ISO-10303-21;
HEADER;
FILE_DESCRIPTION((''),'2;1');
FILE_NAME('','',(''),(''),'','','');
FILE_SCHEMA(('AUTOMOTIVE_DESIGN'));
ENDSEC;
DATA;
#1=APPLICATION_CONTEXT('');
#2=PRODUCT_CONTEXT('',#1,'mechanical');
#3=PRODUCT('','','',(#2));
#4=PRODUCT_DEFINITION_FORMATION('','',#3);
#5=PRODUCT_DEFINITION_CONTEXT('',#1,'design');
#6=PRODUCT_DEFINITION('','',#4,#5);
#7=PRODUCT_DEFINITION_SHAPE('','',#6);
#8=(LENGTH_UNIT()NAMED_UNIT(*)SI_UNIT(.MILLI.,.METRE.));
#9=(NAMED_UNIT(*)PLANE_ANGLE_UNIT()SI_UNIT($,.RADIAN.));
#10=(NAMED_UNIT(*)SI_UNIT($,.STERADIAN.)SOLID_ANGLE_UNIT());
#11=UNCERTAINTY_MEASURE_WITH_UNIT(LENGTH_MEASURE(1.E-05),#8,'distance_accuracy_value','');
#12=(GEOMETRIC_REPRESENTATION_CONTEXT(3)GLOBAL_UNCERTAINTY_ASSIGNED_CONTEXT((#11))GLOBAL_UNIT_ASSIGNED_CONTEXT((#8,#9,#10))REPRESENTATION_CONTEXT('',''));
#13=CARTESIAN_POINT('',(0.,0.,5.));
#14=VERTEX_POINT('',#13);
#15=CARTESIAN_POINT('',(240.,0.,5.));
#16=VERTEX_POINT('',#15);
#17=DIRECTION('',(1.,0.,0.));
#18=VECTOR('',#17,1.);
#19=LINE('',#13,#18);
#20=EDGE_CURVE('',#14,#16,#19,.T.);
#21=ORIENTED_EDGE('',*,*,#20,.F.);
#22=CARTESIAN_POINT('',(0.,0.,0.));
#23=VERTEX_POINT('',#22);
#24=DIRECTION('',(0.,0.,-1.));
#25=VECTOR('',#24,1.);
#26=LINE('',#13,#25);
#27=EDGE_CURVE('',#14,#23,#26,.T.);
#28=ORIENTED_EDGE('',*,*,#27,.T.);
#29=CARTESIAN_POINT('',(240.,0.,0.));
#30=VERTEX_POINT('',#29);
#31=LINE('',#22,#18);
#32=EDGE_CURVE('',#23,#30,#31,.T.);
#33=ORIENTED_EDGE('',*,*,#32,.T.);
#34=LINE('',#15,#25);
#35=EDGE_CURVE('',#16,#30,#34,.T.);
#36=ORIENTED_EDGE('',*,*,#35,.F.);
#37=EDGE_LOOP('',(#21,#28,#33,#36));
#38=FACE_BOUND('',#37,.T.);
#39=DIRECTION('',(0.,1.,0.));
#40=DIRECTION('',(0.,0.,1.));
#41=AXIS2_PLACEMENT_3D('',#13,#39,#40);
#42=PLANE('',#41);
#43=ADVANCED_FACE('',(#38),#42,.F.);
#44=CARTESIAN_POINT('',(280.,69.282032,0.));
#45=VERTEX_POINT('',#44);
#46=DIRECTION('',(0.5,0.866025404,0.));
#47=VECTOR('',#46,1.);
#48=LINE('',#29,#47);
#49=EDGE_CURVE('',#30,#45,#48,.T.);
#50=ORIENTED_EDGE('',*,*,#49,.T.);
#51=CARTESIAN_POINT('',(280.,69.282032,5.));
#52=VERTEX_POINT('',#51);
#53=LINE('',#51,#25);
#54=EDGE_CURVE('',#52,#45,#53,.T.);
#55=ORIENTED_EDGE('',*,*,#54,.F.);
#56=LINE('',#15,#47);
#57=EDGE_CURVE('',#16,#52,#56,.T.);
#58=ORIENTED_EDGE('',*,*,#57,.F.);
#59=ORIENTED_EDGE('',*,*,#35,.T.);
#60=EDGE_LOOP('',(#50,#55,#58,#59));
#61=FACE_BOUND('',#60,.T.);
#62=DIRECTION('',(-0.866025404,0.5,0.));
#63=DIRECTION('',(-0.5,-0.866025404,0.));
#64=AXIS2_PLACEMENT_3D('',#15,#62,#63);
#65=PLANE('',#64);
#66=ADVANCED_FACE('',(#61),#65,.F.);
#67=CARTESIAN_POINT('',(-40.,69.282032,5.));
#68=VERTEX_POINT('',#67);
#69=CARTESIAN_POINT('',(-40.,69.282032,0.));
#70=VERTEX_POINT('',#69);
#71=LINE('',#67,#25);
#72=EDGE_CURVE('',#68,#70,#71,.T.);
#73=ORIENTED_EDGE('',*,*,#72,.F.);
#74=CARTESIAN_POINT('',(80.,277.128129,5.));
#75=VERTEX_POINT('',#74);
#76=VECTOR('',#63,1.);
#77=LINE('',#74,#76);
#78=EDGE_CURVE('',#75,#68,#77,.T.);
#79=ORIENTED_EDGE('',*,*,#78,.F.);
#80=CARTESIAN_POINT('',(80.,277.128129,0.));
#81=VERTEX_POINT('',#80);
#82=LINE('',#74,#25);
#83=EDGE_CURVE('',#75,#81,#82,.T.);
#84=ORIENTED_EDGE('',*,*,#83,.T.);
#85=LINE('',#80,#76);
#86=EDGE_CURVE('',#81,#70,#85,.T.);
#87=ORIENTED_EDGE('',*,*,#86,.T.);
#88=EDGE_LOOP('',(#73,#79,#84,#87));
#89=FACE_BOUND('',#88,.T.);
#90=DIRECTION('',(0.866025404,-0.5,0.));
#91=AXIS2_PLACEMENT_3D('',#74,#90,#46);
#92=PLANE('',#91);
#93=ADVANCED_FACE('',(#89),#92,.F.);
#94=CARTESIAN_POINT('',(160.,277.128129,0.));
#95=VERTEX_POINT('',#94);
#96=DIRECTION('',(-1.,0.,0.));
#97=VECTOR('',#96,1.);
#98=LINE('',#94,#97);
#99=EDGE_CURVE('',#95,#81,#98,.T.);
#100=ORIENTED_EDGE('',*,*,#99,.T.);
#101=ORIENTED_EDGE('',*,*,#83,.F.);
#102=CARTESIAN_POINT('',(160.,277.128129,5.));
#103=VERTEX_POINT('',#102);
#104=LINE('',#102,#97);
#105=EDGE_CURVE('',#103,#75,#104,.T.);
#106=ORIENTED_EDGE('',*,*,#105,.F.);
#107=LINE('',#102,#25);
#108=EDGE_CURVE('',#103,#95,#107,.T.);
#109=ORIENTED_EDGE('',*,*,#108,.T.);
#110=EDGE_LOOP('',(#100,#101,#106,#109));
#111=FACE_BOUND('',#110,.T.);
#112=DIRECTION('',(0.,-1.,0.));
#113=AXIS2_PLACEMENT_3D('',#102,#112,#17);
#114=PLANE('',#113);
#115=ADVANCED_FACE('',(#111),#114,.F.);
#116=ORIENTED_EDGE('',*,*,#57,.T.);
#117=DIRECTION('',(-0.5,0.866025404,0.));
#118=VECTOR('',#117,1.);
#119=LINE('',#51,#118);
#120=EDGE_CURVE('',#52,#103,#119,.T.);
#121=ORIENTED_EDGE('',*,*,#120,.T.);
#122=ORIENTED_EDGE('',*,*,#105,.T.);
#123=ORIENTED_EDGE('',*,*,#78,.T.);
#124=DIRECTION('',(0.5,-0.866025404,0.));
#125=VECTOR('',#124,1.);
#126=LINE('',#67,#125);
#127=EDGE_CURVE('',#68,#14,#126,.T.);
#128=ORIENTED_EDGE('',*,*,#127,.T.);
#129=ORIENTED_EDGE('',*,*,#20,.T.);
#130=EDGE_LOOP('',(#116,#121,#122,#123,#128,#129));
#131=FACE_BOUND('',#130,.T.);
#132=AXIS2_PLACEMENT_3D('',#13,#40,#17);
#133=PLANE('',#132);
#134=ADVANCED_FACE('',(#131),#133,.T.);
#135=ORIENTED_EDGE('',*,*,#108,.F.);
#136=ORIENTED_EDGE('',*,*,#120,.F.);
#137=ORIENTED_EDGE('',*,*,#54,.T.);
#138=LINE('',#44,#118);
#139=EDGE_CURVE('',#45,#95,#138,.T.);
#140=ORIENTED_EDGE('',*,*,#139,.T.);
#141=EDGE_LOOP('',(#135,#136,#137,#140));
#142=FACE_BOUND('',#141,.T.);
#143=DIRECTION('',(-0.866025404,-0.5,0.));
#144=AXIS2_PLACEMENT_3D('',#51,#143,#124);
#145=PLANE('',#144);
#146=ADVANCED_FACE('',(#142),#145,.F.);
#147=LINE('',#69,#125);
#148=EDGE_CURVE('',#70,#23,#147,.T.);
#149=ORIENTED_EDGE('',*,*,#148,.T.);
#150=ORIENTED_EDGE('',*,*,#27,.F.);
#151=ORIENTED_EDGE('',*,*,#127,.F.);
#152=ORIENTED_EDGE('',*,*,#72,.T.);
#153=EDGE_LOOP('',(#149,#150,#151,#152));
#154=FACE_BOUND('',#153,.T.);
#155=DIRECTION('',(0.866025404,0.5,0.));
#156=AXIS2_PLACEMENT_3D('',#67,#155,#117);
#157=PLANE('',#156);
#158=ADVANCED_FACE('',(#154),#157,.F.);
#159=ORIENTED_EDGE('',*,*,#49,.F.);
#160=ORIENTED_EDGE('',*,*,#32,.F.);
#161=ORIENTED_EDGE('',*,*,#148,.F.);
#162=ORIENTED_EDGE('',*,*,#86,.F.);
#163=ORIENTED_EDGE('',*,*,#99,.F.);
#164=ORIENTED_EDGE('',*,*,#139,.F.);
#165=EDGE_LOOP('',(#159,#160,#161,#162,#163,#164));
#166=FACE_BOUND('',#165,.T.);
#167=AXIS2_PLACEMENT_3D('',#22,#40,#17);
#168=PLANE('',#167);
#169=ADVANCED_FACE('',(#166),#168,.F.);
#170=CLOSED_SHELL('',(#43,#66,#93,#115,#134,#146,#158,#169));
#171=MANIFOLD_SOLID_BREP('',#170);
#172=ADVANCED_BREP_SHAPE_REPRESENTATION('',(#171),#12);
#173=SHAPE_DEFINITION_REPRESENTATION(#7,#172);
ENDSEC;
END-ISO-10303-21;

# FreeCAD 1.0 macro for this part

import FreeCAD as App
import Part
import Sketcher
Q = App.Units.Quantity


def add_polygon(sketch, points):
    """Adds a closed chain of lines whose ends are joined by coincident constraints."""
    first, n = sketch.GeometryCount, len(points)
    for a, b in zip(points, points[1:] + points[:1]):
        sketch.addGeometry(Part.LineSegment(App.Vector(*a, 0), App.Vector(*b, 0)), False)
    for i in range(n):
        sketch.addConstraint(Sketcher.Constraint("Coincident", first + i, 2, first + (i + 1) % n, 1))

doc = App.newDocument("Part")
body = doc.addObject("PartDesign::Body", "Body")

sketch1 = body.newObject("Sketcher::SketchObject", "Sketch")
sketch1.AttachmentSupport = (doc.getObject("XY_Plane"), [""])
sketch1.MapMode = "FlatFace"
add_polygon(sketch1, [(0, 0), (240, 0), (280, 69.282032), (160, 277.128129), (80, 277.128129), (-40, 69.282032)])
sketch1.addConstraint(Sketcher.Constraint("Horizontal", 0))
sketch1.addConstraint(Sketcher.Constraint("Horizontal", 3))
sketch1.addConstraint(Sketcher.Constraint("Coincident", 5, 2, -1, 1))
sketch1.addConstraint(Sketcher.Constraint("Parallel", 1, 4))
sketch1.addConstraint(Sketcher.Constraint("Parallel", 2, 5))
sketch1.addConstraint(Sketcher.Constraint("Horizontal", 1, 2, 4, 2))
sketch1.addConstraint(Sketcher.Constraint("Equal", 2, 4))
sketch1.addConstraint(Sketcher.Constraint("DistanceX", 0, 1, 0, 2, 240.0))
sketch1.addConstraint(Sketcher.Constraint("DistanceX", 3, 2, 3, 1, 80.0))
sketch1.addConstraint(Sketcher.Constraint("Angle", 1, Q("60 deg")))
sketch1.addConstraint(Sketcher.Constraint("Distance", 1, 80.0))
pad1 = body.newObject("PartDesign::Pad", "Pad")
pad1.Profile = sketch1
pad1.Length = 5

doc.recompute()
